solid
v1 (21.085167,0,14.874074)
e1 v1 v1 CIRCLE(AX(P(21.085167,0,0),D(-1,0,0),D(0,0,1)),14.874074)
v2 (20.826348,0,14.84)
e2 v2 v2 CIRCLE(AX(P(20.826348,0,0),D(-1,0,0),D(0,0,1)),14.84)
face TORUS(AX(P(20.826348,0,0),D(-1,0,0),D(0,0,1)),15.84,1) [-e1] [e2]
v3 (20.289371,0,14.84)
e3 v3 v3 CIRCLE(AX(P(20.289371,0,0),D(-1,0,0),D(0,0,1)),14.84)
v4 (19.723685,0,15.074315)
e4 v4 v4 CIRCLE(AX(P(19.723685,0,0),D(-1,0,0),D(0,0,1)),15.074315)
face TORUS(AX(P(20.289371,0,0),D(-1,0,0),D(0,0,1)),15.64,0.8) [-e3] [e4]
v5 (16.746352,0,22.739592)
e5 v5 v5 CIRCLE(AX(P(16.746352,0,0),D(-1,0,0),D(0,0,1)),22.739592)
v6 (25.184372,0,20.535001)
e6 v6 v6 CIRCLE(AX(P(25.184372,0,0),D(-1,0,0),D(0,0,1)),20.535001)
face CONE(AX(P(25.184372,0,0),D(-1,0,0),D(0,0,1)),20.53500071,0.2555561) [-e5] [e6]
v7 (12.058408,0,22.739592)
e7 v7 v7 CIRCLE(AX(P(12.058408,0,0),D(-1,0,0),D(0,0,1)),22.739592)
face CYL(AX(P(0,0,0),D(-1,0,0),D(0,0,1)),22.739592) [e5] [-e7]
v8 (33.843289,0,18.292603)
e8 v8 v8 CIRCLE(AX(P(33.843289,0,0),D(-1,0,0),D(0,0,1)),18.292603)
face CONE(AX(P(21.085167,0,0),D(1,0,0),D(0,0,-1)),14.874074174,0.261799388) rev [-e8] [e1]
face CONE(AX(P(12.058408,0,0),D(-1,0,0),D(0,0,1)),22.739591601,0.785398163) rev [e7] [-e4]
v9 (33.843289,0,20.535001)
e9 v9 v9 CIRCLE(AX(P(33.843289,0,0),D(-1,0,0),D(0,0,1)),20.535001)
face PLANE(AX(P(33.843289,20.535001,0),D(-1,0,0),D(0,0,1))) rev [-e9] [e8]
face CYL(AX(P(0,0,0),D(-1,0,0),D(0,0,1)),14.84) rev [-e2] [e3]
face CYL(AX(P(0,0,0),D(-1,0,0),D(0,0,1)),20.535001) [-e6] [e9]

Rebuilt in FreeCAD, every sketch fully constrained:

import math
import FreeCAD as App
import Part
import Sketcher
from FreeCAD import Vector
Q = App.Units.Quantity

doc = App.newDocument("Part")
body = doc.addObject("PartDesign::Body", "Body")

# Sketch on XY plane
sketch1 = doc.addObject("Sketcher::SketchObject", "Sketch")
body.addObject(sketch1)
sketch1.AttachmentSupport = (doc.XY_Plane, [""])
sketch1.MapMode = "FlatFace"
sketch1.addGeometry(Part.LineSegment(Vector(12.06, 22.74, 0), Vector(19.72, 15.07, 0)), False)
sketch1.addGeometry(Part.ArcOfCircle(Part.Circle(Vector(20.29, 15.64, 0), Vector(0, 0, 1), 0.8), math.radians(-135), math.radians(-90)), False)
sketch1.addGeometry(Part.LineSegment(Vector(20.29, 14.84, 0), Vector(20.83, 14.84, 0)), False)
sketch1.addGeometry(Part.ArcOfCircle(Part.Circle(Vector(20.83, 15.84, 0), Vector(0, 0, 1), 1), math.radians(-90), math.radians(-75)), False)
sketch1.addGeometry(Part.LineSegment(Vector(21.09, 14.87, 0), Vector(33.84, 18.29, 0)), False)
sketch1.addGeometry(Part.LineSegment(Vector(33.84, 18.29, 0), Vector(33.84, 20.54, 0)), False)
sketch1.addGeometry(Part.LineSegment(Vector(33.84, 20.54, 0), Vector(25.18, 20.54, 0)), False)
sketch1.addGeometry(Part.LineSegment(Vector(25.18, 20.54, 0), Vector(16.75, 22.74, 0)), False)
sketch1.addGeometry(Part.LineSegment(Vector(16.75, 22.74, 0), Vector(12.06, 22.74, 0)), False)
sketch1.addConstraint(Sketcher.Constraint("Tangent", 0, 2, 1, 1))
sketch1.addConstraint(Sketcher.Constraint("Tangent", 1, 2, 2, 1))
sketch1.addConstraint(Sketcher.Constraint("Tangent", 2, 2, 3, 1))
sketch1.addConstraint(Sketcher.Constraint("Tangent", 3, 2, 4, 1))
sketch1.addConstraint(Sketcher.Constraint("Coincident", 4, 2, 5, 1))
sketch1.addConstraint(Sketcher.Constraint("Coincident", 5, 2, 6, 1))
sketch1.addConstraint(Sketcher.Constraint("Coincident", 6, 2, 7, 1))
sketch1.addConstraint(Sketcher.Constraint("Coincident", 7, 2, 8, 1))
sketch1.addConstraint(Sketcher.Constraint("Coincident", 8, 2, 0, 1))
sketch1.addConstraint(Sketcher.Constraint("Horizontal", 2))
sketch1.addConstraint(Sketcher.Constraint("Vertical", 5))
sketch1.addConstraint(Sketcher.Constraint("Horizontal", 6))
sketch1.addConstraint(Sketcher.Constraint("Horizontal", 8))
sketch1.addConstraint(Sketcher.Constraint("Radius", 3, 1.0))
sketch1.addConstraint(Sketcher.Constraint("Radius", 1, 0.8))
sketch1.addConstraint(Sketcher.Constraint("Angle", 0, Q("-45 deg")))
sketch1.addConstraint(Sketcher.Constraint("Angle", 4, Q("15 deg")))
sketch1.addConstraint(Sketcher.Constraint("DistanceY", -1, 1, 1, 3, 15.64))
sketch1.addConstraint(Sketcher.Constraint("DistanceY", -1, 1, 5, 2, 20.535001))
sketch1.addConstraint(Sketcher.Constraint("DistanceX", 1, 3, 6, 2, 4.895001))
sketch1.addConstraint(Sketcher.Constraint("Distance", 0, 10.840339))
sketch1.addConstraint(Sketcher.Constraint("Distance", 4, 13.208181))
sketch1.addConstraint(Sketcher.Constraint("Distance", 7, 8.721262))
sketch1.addConstraint(Sketcher.Constraint("DistanceX", 2, 1, 2, 2, 0.536977))
sketch1.addConstraint(Sketcher.Constraint("DistanceX", -1, 1, 1, 3, 20.289371))
revolution = doc.addObject("PartDesign::Revolution", "Revolution")
body.addObject(revolution)
revolution.Profile = sketch1
revolution.ReferenceAxis = (sketch1, ["H_Axis"])
revolution.Angle = 360

doc.recompute()
